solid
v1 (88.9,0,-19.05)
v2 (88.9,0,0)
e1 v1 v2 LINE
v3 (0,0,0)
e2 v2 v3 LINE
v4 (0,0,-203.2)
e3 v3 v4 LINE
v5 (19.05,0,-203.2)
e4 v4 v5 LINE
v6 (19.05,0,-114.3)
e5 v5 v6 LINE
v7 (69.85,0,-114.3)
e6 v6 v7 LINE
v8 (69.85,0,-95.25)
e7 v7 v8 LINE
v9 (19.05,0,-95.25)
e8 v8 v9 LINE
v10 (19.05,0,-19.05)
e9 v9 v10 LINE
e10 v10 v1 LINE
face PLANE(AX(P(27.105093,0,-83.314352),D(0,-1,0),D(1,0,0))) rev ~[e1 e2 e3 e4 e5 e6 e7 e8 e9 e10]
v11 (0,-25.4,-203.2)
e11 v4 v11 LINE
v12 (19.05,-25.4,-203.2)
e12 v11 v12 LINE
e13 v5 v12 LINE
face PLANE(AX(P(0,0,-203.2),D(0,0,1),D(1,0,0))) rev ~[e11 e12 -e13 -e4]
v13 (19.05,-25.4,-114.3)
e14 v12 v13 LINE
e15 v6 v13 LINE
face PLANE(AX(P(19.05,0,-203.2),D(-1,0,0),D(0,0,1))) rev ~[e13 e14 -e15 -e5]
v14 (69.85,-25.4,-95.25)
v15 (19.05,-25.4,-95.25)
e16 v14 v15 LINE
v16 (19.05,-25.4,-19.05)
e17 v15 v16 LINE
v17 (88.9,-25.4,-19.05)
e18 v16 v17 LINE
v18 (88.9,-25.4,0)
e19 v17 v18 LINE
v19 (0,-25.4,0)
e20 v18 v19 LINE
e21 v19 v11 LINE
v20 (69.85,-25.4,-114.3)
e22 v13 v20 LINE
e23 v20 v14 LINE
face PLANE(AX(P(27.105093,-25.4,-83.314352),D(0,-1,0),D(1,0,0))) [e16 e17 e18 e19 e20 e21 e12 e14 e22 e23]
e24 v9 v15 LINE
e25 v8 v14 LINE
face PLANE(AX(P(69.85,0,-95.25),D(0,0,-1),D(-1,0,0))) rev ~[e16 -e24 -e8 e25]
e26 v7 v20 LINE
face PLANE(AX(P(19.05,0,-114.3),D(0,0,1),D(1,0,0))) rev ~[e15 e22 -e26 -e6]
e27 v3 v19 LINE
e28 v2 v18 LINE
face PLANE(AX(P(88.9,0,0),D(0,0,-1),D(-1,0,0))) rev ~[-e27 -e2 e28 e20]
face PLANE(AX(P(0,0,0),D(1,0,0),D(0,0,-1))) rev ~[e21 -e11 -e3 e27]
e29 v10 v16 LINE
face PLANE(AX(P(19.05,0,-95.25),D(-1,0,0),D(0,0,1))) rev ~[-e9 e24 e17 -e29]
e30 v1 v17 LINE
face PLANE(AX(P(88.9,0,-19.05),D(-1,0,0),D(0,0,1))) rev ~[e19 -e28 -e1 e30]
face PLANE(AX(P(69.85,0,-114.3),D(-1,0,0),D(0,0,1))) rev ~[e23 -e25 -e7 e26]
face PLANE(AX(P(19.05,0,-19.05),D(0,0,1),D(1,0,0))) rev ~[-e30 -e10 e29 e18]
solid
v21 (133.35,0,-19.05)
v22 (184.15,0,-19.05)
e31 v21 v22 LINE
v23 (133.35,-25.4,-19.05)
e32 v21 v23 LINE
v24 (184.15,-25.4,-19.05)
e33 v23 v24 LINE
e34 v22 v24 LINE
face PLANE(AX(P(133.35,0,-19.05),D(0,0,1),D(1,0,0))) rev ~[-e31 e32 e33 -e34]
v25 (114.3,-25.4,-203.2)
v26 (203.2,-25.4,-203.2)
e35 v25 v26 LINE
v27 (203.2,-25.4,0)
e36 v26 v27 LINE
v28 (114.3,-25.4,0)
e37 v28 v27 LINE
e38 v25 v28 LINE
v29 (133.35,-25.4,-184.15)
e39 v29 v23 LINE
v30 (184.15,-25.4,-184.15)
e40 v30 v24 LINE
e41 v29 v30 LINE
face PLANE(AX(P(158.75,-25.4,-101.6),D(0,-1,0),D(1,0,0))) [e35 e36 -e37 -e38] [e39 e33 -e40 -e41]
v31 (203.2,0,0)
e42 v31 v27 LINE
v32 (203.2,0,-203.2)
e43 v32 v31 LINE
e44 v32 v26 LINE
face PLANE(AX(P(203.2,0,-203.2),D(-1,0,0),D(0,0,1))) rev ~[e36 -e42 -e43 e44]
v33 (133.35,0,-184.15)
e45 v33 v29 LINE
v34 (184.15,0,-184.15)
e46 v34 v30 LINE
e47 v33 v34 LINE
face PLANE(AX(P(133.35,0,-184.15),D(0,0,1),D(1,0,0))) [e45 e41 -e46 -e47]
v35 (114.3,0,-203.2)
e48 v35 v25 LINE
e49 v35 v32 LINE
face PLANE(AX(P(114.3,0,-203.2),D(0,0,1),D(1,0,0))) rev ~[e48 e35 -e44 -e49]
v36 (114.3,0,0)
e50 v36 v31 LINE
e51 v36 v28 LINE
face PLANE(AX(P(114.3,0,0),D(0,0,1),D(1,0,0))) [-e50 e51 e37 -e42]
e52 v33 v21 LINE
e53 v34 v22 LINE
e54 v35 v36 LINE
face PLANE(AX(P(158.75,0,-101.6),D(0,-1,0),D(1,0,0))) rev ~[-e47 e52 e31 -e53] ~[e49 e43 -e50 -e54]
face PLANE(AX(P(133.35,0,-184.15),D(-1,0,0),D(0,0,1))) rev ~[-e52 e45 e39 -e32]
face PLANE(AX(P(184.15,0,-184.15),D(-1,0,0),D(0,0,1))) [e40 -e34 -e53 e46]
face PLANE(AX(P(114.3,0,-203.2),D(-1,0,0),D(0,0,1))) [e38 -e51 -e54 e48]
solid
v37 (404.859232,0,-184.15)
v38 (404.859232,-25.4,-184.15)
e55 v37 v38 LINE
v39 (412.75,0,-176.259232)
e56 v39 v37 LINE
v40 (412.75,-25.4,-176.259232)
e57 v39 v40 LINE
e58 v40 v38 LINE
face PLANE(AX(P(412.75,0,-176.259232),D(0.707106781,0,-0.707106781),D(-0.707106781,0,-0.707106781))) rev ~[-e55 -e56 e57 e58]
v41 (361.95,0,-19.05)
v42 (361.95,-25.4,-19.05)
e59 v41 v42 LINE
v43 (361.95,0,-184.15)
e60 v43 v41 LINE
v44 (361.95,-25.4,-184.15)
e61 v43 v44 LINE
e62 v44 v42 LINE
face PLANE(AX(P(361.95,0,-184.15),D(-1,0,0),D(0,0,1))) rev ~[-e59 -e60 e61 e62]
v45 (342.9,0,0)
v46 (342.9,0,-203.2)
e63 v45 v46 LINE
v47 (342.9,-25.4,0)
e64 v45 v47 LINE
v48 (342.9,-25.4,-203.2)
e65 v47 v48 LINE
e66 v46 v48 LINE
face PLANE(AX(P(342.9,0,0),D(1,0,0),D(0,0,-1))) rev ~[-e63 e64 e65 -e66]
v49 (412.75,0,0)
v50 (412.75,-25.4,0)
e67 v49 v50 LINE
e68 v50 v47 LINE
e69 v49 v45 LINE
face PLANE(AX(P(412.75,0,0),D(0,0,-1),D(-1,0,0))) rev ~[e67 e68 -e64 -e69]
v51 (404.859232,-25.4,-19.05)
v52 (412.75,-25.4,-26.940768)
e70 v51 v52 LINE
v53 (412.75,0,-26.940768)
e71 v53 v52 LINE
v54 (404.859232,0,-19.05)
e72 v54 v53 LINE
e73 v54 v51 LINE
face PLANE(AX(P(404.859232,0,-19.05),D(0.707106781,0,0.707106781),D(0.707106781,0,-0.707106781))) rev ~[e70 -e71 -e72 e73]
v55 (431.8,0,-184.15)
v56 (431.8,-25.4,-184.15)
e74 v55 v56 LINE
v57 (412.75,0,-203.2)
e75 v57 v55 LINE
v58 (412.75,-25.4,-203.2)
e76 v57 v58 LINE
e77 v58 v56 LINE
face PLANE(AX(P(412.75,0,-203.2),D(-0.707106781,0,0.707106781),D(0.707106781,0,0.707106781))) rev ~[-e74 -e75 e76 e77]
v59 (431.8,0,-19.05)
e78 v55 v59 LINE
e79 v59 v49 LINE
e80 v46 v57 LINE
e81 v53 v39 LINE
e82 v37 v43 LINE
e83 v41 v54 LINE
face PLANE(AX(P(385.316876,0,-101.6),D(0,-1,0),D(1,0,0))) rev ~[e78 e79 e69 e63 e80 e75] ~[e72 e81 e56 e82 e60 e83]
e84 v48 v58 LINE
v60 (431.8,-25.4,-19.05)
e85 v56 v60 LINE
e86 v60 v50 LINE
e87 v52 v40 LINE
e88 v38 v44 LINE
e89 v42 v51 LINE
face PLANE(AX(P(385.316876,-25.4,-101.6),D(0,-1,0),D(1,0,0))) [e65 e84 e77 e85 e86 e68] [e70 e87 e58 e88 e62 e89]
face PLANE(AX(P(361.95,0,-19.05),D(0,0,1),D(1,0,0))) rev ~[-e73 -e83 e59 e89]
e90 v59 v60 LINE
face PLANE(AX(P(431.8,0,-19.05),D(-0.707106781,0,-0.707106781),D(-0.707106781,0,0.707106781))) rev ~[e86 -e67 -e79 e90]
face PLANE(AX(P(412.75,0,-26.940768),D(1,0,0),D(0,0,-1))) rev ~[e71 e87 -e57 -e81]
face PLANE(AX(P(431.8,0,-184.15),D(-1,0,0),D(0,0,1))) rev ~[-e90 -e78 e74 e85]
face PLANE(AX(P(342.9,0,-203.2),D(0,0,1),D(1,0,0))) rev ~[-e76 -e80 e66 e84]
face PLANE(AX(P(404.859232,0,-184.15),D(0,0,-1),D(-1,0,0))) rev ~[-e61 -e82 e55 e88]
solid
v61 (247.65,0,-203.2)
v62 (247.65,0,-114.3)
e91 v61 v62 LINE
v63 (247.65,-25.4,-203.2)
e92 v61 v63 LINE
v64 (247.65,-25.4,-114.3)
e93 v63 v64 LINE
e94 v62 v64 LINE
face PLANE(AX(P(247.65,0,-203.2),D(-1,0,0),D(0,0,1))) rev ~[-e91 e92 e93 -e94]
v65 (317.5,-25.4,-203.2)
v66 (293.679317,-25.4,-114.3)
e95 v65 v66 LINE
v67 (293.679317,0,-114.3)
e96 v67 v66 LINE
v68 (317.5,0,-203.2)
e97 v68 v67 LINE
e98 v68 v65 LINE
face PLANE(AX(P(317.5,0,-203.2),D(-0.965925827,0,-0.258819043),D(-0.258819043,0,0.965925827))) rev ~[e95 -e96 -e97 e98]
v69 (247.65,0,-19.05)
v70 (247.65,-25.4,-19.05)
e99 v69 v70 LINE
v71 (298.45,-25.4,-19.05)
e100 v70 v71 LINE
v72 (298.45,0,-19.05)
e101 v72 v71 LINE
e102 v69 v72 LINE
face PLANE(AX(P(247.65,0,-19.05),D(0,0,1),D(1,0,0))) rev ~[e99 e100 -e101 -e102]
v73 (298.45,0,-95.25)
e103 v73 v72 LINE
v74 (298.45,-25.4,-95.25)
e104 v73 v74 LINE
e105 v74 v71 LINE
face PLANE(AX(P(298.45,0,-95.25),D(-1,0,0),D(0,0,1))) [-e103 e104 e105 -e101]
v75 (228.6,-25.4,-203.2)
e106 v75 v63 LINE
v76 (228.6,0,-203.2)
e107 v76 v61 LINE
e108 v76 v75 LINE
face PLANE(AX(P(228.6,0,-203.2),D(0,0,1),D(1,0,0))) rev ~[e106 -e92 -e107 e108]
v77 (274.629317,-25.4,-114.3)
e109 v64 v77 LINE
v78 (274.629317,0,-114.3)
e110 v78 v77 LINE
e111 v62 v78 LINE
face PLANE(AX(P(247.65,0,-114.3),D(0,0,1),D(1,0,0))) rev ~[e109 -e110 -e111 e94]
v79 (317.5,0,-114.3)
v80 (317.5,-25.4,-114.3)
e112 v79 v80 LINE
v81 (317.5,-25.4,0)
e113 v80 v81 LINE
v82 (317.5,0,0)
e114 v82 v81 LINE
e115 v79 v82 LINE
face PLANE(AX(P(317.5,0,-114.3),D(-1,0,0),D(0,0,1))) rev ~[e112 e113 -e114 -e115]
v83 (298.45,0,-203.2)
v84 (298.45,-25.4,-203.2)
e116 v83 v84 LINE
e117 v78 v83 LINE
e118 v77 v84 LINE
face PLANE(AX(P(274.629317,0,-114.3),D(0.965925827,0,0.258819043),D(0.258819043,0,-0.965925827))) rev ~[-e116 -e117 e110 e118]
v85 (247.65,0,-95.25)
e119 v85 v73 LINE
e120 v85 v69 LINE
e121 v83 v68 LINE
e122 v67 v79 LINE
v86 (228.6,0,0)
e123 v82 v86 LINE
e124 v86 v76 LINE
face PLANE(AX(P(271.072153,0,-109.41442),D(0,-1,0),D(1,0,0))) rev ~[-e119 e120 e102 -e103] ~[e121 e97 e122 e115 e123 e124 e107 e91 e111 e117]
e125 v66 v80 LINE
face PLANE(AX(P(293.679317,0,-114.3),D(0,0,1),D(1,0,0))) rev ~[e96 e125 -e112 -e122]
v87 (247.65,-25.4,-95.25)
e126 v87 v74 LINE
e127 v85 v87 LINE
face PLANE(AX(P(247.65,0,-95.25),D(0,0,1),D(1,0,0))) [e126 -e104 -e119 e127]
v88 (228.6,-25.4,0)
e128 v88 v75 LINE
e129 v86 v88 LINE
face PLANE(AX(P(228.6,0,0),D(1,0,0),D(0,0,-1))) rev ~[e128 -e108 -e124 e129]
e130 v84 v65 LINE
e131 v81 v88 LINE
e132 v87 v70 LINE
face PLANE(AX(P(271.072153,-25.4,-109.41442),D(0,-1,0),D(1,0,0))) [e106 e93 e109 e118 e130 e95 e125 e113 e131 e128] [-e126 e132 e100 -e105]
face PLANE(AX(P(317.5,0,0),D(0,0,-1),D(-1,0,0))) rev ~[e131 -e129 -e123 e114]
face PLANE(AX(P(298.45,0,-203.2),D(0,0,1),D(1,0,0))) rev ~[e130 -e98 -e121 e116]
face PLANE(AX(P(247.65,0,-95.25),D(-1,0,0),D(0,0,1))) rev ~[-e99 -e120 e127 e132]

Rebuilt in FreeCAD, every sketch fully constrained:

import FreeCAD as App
import Part
import Sketcher
from FreeCAD import Vector
Q = App.Units.Quantity


def add_polygon(sketch, points):
    """Adds a closed chain of lines whose ends are joined by coincident constraints."""
    first, n = sketch.GeometryCount, len(points)
    for a, b in zip(points, points[1:] + points[:1]):
        sketch.addGeometry(Part.LineSegment(App.Vector(*a, 0), App.Vector(*b, 0)), False)
    for i in range(n):
        sketch.addConstraint(Sketcher.Constraint("Coincident", first + i, 2, first + (i + 1) % n, 1))

doc = App.newDocument("Part")
body = doc.addObject("PartDesign::Body", "Body")
body.AllowCompound = True

sketch1 = doc.addObject("Sketcher::SketchObject", "Sketch")
body.addObject(sketch1)
sketch1.AttachmentSupport = (doc.XZ_Plane, [""])
sketch1.MapMode = "FlatFace"
add_polygon(sketch1, [(88.9, 0), (0, 0), (0, -203.2), (19.05, -203.2), (19.05, -114.3), (69.85, -114.3), (69.85, -95.25), (19.05, -95.25), (19.05, -19.05), (88.9, -19.05)])
add_polygon(sketch1, [(114.3, 0), (114.3, -203.2), (203.2, -203.2), (203.2, 0)])
add_polygon(sketch1, [(184.15, -184.15), (133.35, -184.15), (133.35, -19.05), (184.15, -19.05)])
add_polygon(sketch1, [(317.5, 0), (228.6, 0), (228.6, -203.2), (247.65, -203.2), (247.65, -114.3), (274.629317, -114.3), (298.45, -203.2), (317.5, -203.2), (293.679317, -114.3), (317.5, -114.3)])
add_polygon(sketch1, [(298.45, -95.25), (247.65, -95.25), (247.65, -19.05), (298.45, -19.05)])
add_polygon(sketch1, [(412.75, 0), (342.9, 0), (342.9, -203.2), (412.75, -203.2), (431.8, -184.15), (431.8, -19.05)])
add_polygon(sketch1, [(412.75, -176.259232), (404.859232, -184.15), (361.95, -184.15), (361.95, -19.05), (404.859232, -19.05), (412.75, -26.940768)])
sketch1.addConstraint([
    Sketcher.Constraint("Horizontal", 0),
    Sketcher.Constraint("Vertical", 1),
    Sketcher.Constraint("Horizontal", 2),
    Sketcher.Constraint("Vertical", 3),
    Sketcher.Constraint("Horizontal", 4),
    Sketcher.Constraint("Vertical", 5),
    Sketcher.Constraint("Horizontal", 6),
    Sketcher.Constraint("Vertical", 7),
    Sketcher.Constraint("Horizontal", 8),
    Sketcher.Constraint("Vertical", 9),
    Sketcher.Constraint("Vertical", 10),
    Sketcher.Constraint("Horizontal", 11),
    Sketcher.Constraint("Vertical", 12),
    Sketcher.Constraint("Horizontal", 13),
    Sketcher.Constraint("Horizontal", 14),
    Sketcher.Constraint("Vertical", 15),
    Sketcher.Constraint("Horizontal", 16),
    Sketcher.Constraint("Vertical", 17),
    Sketcher.Constraint("Horizontal", 18),
    Sketcher.Constraint("Vertical", 19),
    Sketcher.Constraint("Horizontal", 20),
    Sketcher.Constraint("Vertical", 21),
    Sketcher.Constraint("Horizontal", 22),
    Sketcher.Constraint("Horizontal", 24),
    Sketcher.Constraint("Horizontal", 26),
    Sketcher.Constraint("Vertical", 27),
    Sketcher.Constraint("Horizontal", 28),
    Sketcher.Constraint("Vertical", 29),
    Sketcher.Constraint("Horizontal", 30),
    Sketcher.Constraint("Vertical", 31),
    Sketcher.Constraint("Horizontal", 32),
    Sketcher.Constraint("Vertical", 33),
    Sketcher.Constraint("Horizontal", 34),
    Sketcher.Constraint("Vertical", 36),
    Sketcher.Constraint("Horizontal", 39),
    Sketcher.Constraint("Vertical", 40),
    Sketcher.Constraint("Horizontal", 41),
    Sketcher.Constraint("Vertical", 43),
    Sketcher.Constraint("Coincident", 0, 2, -1, 1),
    Sketcher.Constraint("PointOnObject", 12, 2, -1),
    Sketcher.Constraint("PointOnObject", 18, 2, -1),
    Sketcher.Constraint("PointOnObject", 32, 2, -1),
    Sketcher.Constraint("Parallel", 23, 25),
    Sketcher.Constraint("Perpendicular", 35, 37),
    Sketcher.Constraint("Perpendicular", 37, 38),
    Sketcher.Constraint("Perpendicular", 38, 42),
    Sketcher.Constraint("Horizontal", 2, 2, 10, 2),
    Sketcher.Constraint("Horizontal", 8, 2, 15, 2),
    Sketcher.Constraint("Horizontal", 11, 2, 19, 2),
    Sketcher.Constraint("Horizontal", 4, 2, 21, 2),
    Sketcher.Constraint("Horizontal", 20, 2, 23, 2),
    Sketcher.Constraint("Horizontal", 22, 2, 25, 2),
    Sketcher.Constraint("Horizontal", 6, 2, 28, 2),
    Sketcher.Constraint("Horizontal", 16, 2, 29, 2),
    Sketcher.Constraint("Horizontal", 24, 2, 33, 2),
    Sketcher.Constraint("Horizontal", 17, 2, 35, 2),
    Sketcher.Constraint("Horizontal", 30, 2, 36, 2),
    Sketcher.Constraint("Horizontal", 35, 2, 38, 2),
    Sketcher.Constraint("Horizontal", 36, 2, 40, 2),
    Sketcher.Constraint("Vertical", 3, 2, 6, 2),
    Sketcher.Constraint("Vertical", 24, 2, 26, 2),
    Sketcher.Constraint("Vertical", 21, 2, 28, 2),
    Sketcher.Constraint("Vertical", 23, 2, 30, 2),
    Sketcher.Constraint("Vertical", 34, 2, 37, 2),
    Sketcher.Constraint("Vertical", 38, 2, 41, 2),
    Sketcher.Constraint("Vertical", 37, 2, 42, 2),
    Sketcher.Constraint("Equal", 0, 11),
    Sketcher.Constraint("Equal", 6, 14),
    Sketcher.Constraint("Equal", 13, 18),
    Sketcher.Constraint("Equal", 2, 20),
    Sketcher.Constraint("Equal", 20, 24),
    Sketcher.Constraint("Equal", 16, 28),
    Sketcher.Constraint("Equal", 8, 32),
    Sketcher.Constraint("Equal", 18, 3),
    Sketcher.Constraint("Equal", 24, 5),
    Sketcher.Constraint("Equal", 5, 9),
    Sketcher.Constraint("Equal", 35, 37),
    Sketcher.Constraint("DistanceX", 4, 1, 4, 2, Q("2 in")),
    Sketcher.Constraint("DistanceY", 1, 2, 1, 1, Q("8 in")),
    Sketcher.Constraint("DistanceY", 7, 1, 7, 2, Q("3 in")),
    Sketcher.Constraint("DistanceX", -1, 1, 11, 2, Q("8 in")),
    Sketcher.Constraint("DistanceX", -1, 1, 18, 2, Q("9 in")),
    Sketcher.Constraint("DistanceX", -1, 1, 35, 2, Q("17 in")),
    Sketcher.Constraint("Angle", 23, Q("-75 deg")),
    Sketcher.Constraint("DistanceX", 39, 2, 34, 2, Q("2 in")),
    Sketcher.Constraint("DistanceX", 4, 2, 14, 2, Q("2.5 in")),
    Sketcher.Constraint("Distance", 38, Q("11.159231 mm")),
])
pad1 = doc.addObject("PartDesign::Pad", "Pad")
body.addObject(pad1)
pad1.Profile = sketch1
pad1.Length = Q("1 in")

doc.recompute()
